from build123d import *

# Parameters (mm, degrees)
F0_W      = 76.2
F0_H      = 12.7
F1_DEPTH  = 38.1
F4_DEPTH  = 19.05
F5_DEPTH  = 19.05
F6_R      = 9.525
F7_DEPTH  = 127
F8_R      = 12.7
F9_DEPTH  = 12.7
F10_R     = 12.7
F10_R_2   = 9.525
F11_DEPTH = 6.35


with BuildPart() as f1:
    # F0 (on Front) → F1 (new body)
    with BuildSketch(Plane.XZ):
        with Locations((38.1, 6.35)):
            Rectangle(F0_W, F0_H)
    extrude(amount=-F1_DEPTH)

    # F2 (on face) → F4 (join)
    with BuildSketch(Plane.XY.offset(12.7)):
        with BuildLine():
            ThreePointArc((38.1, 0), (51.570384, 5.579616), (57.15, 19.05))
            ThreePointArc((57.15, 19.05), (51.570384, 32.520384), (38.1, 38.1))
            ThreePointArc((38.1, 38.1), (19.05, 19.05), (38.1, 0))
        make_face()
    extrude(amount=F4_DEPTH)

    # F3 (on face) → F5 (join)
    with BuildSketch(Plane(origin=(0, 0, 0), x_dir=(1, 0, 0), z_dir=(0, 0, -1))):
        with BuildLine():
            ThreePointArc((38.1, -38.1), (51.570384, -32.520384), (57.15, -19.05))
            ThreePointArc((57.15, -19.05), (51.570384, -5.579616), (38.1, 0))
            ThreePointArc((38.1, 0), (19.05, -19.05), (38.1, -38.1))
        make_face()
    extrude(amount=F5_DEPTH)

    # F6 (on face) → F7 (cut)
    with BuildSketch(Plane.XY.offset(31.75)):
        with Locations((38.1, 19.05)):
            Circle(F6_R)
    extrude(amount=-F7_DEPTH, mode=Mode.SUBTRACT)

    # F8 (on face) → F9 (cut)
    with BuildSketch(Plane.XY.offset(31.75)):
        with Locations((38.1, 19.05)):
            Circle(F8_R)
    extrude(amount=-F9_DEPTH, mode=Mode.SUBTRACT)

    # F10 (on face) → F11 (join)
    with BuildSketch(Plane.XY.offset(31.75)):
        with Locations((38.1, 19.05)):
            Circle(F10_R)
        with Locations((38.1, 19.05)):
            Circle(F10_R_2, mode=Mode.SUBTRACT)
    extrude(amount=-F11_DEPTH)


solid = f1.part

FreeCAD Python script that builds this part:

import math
import FreeCAD as App
import Part
import Sketcher
from FreeCAD import Vector
Q = App.Units.Quantity

doc = App.newDocument("Part")
body = doc.addObject("PartDesign::Body", "Body")

sketch1 = body.newObject("Sketcher::SketchObject", "Sketch")
sketch1.AttachmentSupport = (doc.getObject("XZ_Plane"), [""])
sketch1.MapMode = "FlatFace"
sketch1.addGeometry([
    Part.LineSegment(Vector(0, 13, 0), Vector(0, 0, 0)),
    Part.LineSegment(Vector(0, 0, 0), Vector(76, 0, 0)),
    Part.LineSegment(Vector(76, 0, 0), Vector(76, 13, 0)),
    Part.LineSegment(Vector(76, 13, 0), Vector(0, 13, 0)),
], False)
sketch1.addConstraint([
    Sketcher.Constraint("Coincident", 0, 2, 1, 1),
    Sketcher.Constraint("Coincident", 1, 2, 2, 1),
    Sketcher.Constraint("Coincident", 2, 2, 3, 1),
    Sketcher.Constraint("Coincident", 3, 2, 0, 1),
    Sketcher.Constraint("Vertical", 0),
    Sketcher.Constraint("Horizontal", 1),
    Sketcher.Constraint("Vertical", 2),
    Sketcher.Constraint("Horizontal", 3),
    Sketcher.Constraint("Coincident", 0, 2, -1, 1),
    Sketcher.Constraint("DistanceX", 1, 1, 1, 2, Q("3 in")),
    Sketcher.Constraint("DistanceY", 0, 2, 0, 1, Q("0.5 in")),
])
pad1 = body.newObject("PartDesign::Pad", "Pad")
pad1.Profile = sketch1
pad1.Length = Q("1.5 in")
pad1.Reversed = True

sketch2 = body.newObject("Sketcher::SketchObject", "Sketch001")
sketch2.AttachmentSupport = (doc.getObject("XY_Plane"), [""])
sketch2.MapMode = "FlatFace"
sketch2.AttachmentOffset = App.Placement(Vector(0, 0, 0.5 * 25.4), App.Rotation())
sketch2.addGeometry([
    Part.ArcOfCircle(Part.Circle(Vector(38, 19, 0), Vector(0, 0, 1), 19), math.radians(-90), math.radians(0)),
    Part.ArcOfCircle(Part.Circle(Vector(38, 19, 0), Vector(0, 0, 1), 19), math.radians(0), math.radians(90)),
    Part.ArcOfCircle(Part.Circle(Vector(38, 19, 0), Vector(0, 0, 1), 19), math.radians(90), math.radians(270)),
], False)
sketch2.addConstraint([
    Sketcher.Constraint("Tangent", 0, 2, 1, 1),
    Sketcher.Constraint("Tangent", 1, 2, 2, 1),
    Sketcher.Constraint("Tangent", 2, 2, 0, 1),
    Sketcher.Constraint("PointOnObject", 2, 2, -1),
    Sketcher.Constraint("Horizontal", 2, 3, 0, 2),
    Sketcher.Constraint("Vertical", 2, 3, 1, 2),
    Sketcher.Constraint("Vertical", 1, 2, 2, 2),
    Sketcher.Constraint("Radius", 0, Q("0.75 in")),
    Sketcher.Constraint("DistanceX", -1, 1, 0, 3, Q("1.5 in")),
])
pad2 = body.newObject("PartDesign::Pad", "Pad001")
pad2.Profile = sketch2
pad2.Length = Q("0.75 in")

sketch3 = body.newObject("Sketcher::SketchObject", "Sketch002")
sketch3.AttachmentSupport = (doc.getObject("XY_Plane"), [""])
sketch3.MapMode = "FlatFace"
sketch3.addGeometry([
    Part.ArcOfCircle(Part.Circle(Vector(38, 19, 0), Vector(0, 0, 1), 19), math.radians(0), math.radians(90)),
    Part.ArcOfCircle(Part.Circle(Vector(38, 19, 0), Vector(0, 0, 1), 19), math.radians(-90), math.radians(0)),
    Part.ArcOfCircle(Part.Circle(Vector(38, 19, 0), Vector(0, 0, 1), 19), math.radians(90), math.radians(270)),
], False)
sketch3.addConstraint([
    Sketcher.Constraint("Tangent", 0, 1, 1, 2),
    Sketcher.Constraint("Tangent", 1, 1, 2, 2),
    Sketcher.Constraint("Tangent", 2, 1, 0, 2),
    Sketcher.Constraint("PointOnObject", 1, 1, -1),
    Sketcher.Constraint("Horizontal", 2, 3, 0, 1),
    Sketcher.Constraint("Vertical", 2, 3, 1, 1),
    Sketcher.Constraint("Vertical", 1, 1, 2, 1),
    Sketcher.Constraint("Radius", 0, Q("0.75 in")),
    Sketcher.Constraint("DistanceX", -1, 1, 0, 3, Q("1.5 in")),
])
pad3 = body.newObject("PartDesign::Pad", "Pad002")
pad3.Profile = sketch3
pad3.Length = Q("0.75 in")
pad3.Reversed = True

sketch4 = body.newObject("Sketcher::SketchObject", "Sketch003")
sketch4.AttachmentSupport = (doc.getObject("XY_Plane"), [""])
sketch4.MapMode = "FlatFace"
sketch4.AttachmentOffset = App.Placement(Vector(0, 0, 1.25 * 25.4), App.Rotation())
sketch4.addGeometry(Part.Circle(Vector(38, 19, 0), Vector(0, 0, 1), 10), False)
sketch4.addConstraint([
    Sketcher.Constraint("Diameter", 0, Q("0.75 in")),
    Sketcher.Constraint("DistanceX", -1, 1, 0, 3, Q("1.5 in")),
    Sketcher.Constraint("DistanceY", -1, 1, 0, 3, Q("0.75 in")),
])
pocket1 = body.newObject("PartDesign::Pocket", "Pocket")
pocket1.Profile = sketch4
pocket1.Length = Q("5 in")

sketch5 = body.newObject("Sketcher::SketchObject", "Sketch004")
sketch5.AttachmentSupport = (doc.getObject("XY_Plane"), [""])
sketch5.MapMode = "FlatFace"
sketch5.AttachmentOffset = App.Placement(Vector(0, 0, 1.25 * 25.4), App.Rotation())
sketch5.addGeometry(Part.Circle(Vector(38, 19, 0), Vector(0, 0, 1), 13), False)
sketch5.addConstraint([
    Sketcher.Constraint("Diameter", 0, Q("1 in")),
    Sketcher.Constraint("DistanceX", -1, 1, 0, 3, Q("1.5 in")),
    Sketcher.Constraint("DistanceY", -1, 1, 0, 3, Q("0.75 in")),
])
pocket2 = body.newObject("PartDesign::Pocket", "Pocket001")
pocket2.Profile = sketch5
pocket2.Length = Q("0.5 in")

sketch6 = body.newObject("Sketcher::SketchObject", "Sketch005")
sketch6.AttachmentSupport = (doc.getObject("XY_Plane"), [""])
sketch6.MapMode = "FlatFace"
sketch6.AttachmentOffset = App.Placement(Vector(0, 0, 1.25 * 25.4), App.Rotation())
sketch6.addGeometry([
    Part.Circle(Vector(38, 19, 0), Vector(0, 0, 1), 13),
    Part.Circle(Vector(38, 19, 0), Vector(0, 0, 1), 10),
], False)
sketch6.addConstraint([
    Sketcher.Constraint("Coincident", 1, 3, 0, 3),
    Sketcher.Constraint("Diameter", 0, Q("1 in")),
    Sketcher.Constraint("Diameter", 1, Q("0.75 in")),
    Sketcher.Constraint("DistanceX", -1, 1, 0, 3, Q("1.5 in")),
    Sketcher.Constraint("DistanceY", -1, 1, 0, 3, Q("0.75 in")),
])
pad4 = body.newObject("PartDesign::Pad", "Pad003")
pad4.Profile = sketch6
pad4.Length = Q("0.25 in")
pad4.Reversed = True

doc.recompute()
